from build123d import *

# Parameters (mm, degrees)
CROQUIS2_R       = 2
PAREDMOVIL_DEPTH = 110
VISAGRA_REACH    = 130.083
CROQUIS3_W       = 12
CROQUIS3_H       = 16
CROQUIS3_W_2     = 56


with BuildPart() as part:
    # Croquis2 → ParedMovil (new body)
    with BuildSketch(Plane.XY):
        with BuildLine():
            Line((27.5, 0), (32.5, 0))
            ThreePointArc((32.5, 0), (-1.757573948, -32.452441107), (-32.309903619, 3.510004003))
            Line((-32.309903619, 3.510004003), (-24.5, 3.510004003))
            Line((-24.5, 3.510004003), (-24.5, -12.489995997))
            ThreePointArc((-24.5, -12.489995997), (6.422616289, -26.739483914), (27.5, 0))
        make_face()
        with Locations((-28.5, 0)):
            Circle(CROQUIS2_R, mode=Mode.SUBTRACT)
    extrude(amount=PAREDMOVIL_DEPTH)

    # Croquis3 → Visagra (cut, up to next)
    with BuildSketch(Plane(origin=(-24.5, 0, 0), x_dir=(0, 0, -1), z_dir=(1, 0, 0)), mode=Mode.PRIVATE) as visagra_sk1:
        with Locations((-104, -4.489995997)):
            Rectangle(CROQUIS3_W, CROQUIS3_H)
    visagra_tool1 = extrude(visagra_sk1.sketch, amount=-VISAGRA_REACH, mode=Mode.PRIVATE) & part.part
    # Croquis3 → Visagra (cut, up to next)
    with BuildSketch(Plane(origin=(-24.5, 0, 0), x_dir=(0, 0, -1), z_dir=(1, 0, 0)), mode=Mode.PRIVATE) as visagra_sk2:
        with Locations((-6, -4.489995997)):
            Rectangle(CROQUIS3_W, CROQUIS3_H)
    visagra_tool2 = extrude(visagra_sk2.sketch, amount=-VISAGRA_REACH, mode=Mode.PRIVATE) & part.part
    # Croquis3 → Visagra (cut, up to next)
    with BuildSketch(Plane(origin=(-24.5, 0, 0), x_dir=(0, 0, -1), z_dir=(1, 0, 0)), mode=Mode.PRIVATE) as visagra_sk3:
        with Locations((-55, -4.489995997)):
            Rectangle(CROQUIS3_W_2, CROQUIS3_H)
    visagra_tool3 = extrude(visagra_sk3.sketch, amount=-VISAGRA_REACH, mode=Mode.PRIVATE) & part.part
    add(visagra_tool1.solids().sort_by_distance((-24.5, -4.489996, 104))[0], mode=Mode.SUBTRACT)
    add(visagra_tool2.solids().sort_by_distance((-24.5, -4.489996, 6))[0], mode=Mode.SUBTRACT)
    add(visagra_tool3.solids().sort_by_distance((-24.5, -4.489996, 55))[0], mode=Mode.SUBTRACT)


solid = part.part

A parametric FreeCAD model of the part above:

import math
import FreeCAD as App
import Part
import Sketcher


def add_polygon(sketch, points):
    """Adds a closed chain of lines whose ends are joined by coincident constraints."""
    first, n = sketch.GeometryCount, len(points)
    for a, b in zip(points, points[1:] + points[:1]):
        sketch.addGeometry(Part.LineSegment(App.Vector(*a, 0), App.Vector(*b, 0)), False)
    for i in range(n):
        sketch.addConstraint(Sketcher.Constraint("Coincident", first + i, 2, first + (i + 1) % n, 1))

doc = App.newDocument("Part")
body = doc.addObject("PartDesign::Body", "Body")

sketch1 = doc.addObject("Sketcher::SketchObject", "Sketch")
body.addObject(sketch1)
sketch1.AttachmentSupport = (doc.XY_Plane, [""])
sketch1.MapMode = "FlatFace"
sketch1.addGeometry([
    Part.LineSegment(App.Vector(32.5, 0, 0), App.Vector(27.5, 0, 0)),
    Part.ArcOfCircle(Part.Circle(App.Vector(0, 0, 0), App.Vector(0, 0, 1), 27.5), math.radians(-153), math.radians(0)),
    Part.LineSegment(App.Vector(-24.5, -12.5, 0), App.Vector(-24.5, 3.5, 0)),
    Part.LineSegment(App.Vector(-24.5, 3.5, 0), App.Vector(-32.3, 3.5, 0)),
    Part.ArcOfCircle(Part.Circle(App.Vector(0, 0, 0), App.Vector(0, 0, 1), 32.5), math.radians(174), math.radians(360)),
    Part.Circle(App.Vector(-28.5, 0, 0), App.Vector(0, 0, 1), 2),
], False)
sketch1.addConstraint([
    Sketcher.Constraint("Coincident", 0, 2, 1, 2),
    Sketcher.Constraint("Coincident", 1, 1, 2, 1),
    Sketcher.Constraint("Coincident", 2, 2, 3, 1),
    Sketcher.Constraint("Coincident", 3, 2, 4, 1),
    Sketcher.Constraint("Coincident", 4, 2, 0, 1),
    Sketcher.Constraint("Horizontal", 0),
    Sketcher.Constraint("Vertical", 2),
    Sketcher.Constraint("Horizontal", 3),
    Sketcher.Constraint("Coincident", 1, 3, -1, 1),
    Sketcher.Constraint("Coincident", 4, 3, -1, 1),
    Sketcher.Constraint("PointOnObject", 5, 3, -1),
    Sketcher.Constraint("PointOnObject", 0, 2, -1),
    Sketcher.Constraint("Diameter", 5, 4.0),
    Sketcher.Constraint("Radius", 1, 27.5),
    Sketcher.Constraint("Radius", 4, 32.5),
    Sketcher.Constraint("DistanceY", 2, 1, 2, 2, 16.0),
    Sketcher.Constraint("DistanceX", 5, 3, 0, 2, 56.0),
    Sketcher.Constraint("DistanceX", 5, 3, 1, 1, 4.0),
])
pad1 = doc.addObject("PartDesign::Pad", "Pad")
body.addObject(pad1)
pad1.Profile = sketch1
pad1.Length = 110

sketch2 = doc.addObject("Sketcher::SketchObject", "Sketch001")
body.addObject(sketch2)
sketch2.AttachmentSupport = (doc.YZ_Plane, [""])
sketch2.MapMode = "FlatFace"
sketch2.AttachmentOffset = App.Placement(App.Vector(0, 0, -24.5), App.Rotation())
add_polygon(sketch2, [(4, 110), (-12, 110), (-12, 98), (4, 98)])
sketch2.addConstraint([
    Sketcher.Constraint("Horizontal", 0),
    Sketcher.Constraint("Vertical", 1),
    Sketcher.Constraint("Horizontal", 2),
    Sketcher.Constraint("Vertical", 3),
    Sketcher.Constraint("DistanceX", 0, 2, 0, 1, 16.0),
    Sketcher.Constraint("DistanceY", 1, 2, 1, 1, 12.0),
    Sketcher.Constraint("DistanceY", -1, 1, 0, 2, 110.0),
    Sketcher.Constraint("DistanceX", 0, 2, -1, 1, 12.489996),
])
pocket1 = doc.addObject("PartDesign::Pocket", "Pocket")
body.addObject(pocket1)
pocket1.Profile = sketch2
pocket1.Type = "UpToFirst"

sketch3 = doc.addObject("Sketcher::SketchObject", "Sketch002")
body.addObject(sketch3)
sketch3.AttachmentSupport = (doc.YZ_Plane, [""])
sketch3.MapMode = "FlatFace"
sketch3.AttachmentOffset = App.Placement(App.Vector(0, 0, -24.5), App.Rotation())
add_polygon(sketch3, [(4, 12), (-12, 12), (-12, 0), (4, 0)])
sketch3.addConstraint([
    Sketcher.Constraint("Horizontal", 0),
    Sketcher.Constraint("Vertical", 1),
    Sketcher.Constraint("Horizontal", 2),
    Sketcher.Constraint("Vertical", 3),
    Sketcher.Constraint("PointOnObject", 1, 2, -1),
    Sketcher.Constraint("DistanceX", 0, 2, 0, 1, 16.0),
    Sketcher.Constraint("DistanceY", 1, 2, 1, 1, 12.0),
    Sketcher.Constraint("DistanceX", 0, 2, -1, 1, 12.489996),
])
pocket2 = doc.addObject("PartDesign::Pocket", "Pocket001")
body.addObject(pocket2)
pocket2.Profile = sketch3
pocket2.Type = "UpToFirst"

sketch4 = doc.addObject("Sketcher::SketchObject", "Sketch003")
body.addObject(sketch4)
sketch4.AttachmentSupport = (doc.YZ_Plane, [""])
sketch4.MapMode = "FlatFace"
sketch4.AttachmentOffset = App.Placement(App.Vector(0, 0, -24.5), App.Rotation())
add_polygon(sketch4, [(4, 83), (-12, 83), (-12, 27), (4, 27)])
sketch4.addConstraint([
    Sketcher.Constraint("Horizontal", 0),
    Sketcher.Constraint("Vertical", 1),
    Sketcher.Constraint("Horizontal", 2),
    Sketcher.Constraint("Vertical", 3),
    Sketcher.Constraint("DistanceX", 0, 2, 0, 1, 16.0),
    Sketcher.Constraint("DistanceY", 1, 2, 1, 1, 56.0),
    Sketcher.Constraint("DistanceY", -1, 1, 0, 2, 83.0),
    Sketcher.Constraint("DistanceX", 0, 2, -1, 1, 12.489996),
])
pocket3 = doc.addObject("PartDesign::Pocket", "Pocket002")
body.addObject(pocket3)
pocket3.Profile = sketch4
pocket3.Type = "UpToFirst"

doc.recompute()
